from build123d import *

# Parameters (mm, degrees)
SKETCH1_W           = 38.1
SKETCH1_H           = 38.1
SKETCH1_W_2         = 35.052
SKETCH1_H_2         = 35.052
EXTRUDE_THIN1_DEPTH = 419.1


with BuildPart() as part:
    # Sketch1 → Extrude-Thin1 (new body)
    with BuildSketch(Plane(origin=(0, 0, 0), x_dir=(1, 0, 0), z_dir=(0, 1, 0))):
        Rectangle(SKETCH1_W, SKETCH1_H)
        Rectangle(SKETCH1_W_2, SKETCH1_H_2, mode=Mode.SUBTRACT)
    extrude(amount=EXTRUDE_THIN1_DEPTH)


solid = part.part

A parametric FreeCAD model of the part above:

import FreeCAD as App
import Part
import Sketcher
from FreeCAD import Vector
Q = App.Units.Quantity


def add_polygon(sketch, points):
    """Adds a closed chain of lines whose ends are joined by coincident constraints."""
    first, n = sketch.GeometryCount, len(points)
    for a, b in zip(points, points[1:] + points[:1]):
        sketch.addGeometry(Part.LineSegment(App.Vector(*a, 0), App.Vector(*b, 0)), False)
    for i in range(n):
        sketch.addConstraint(Sketcher.Constraint("Coincident", first + i, 2, first + (i + 1) % n, 1))

doc = App.newDocument("Part")
body = doc.addObject("PartDesign::Body", "Body")

# Sketch on XZ plane
sketch1 = body.newObject("Sketcher::SketchObject", "Sketch")
sketch1.AttachmentSupport = (doc.getObject("XZ_Plane"), [""])
sketch1.MapMode = "FlatFace"
add_polygon(sketch1, [(-19.05, -19.05), (-19.05, 19.05), (19.05, 19.05), (19.05, -19.05)])  # lines 0-3
add_polygon(sketch1, [(17.526, 17.526), (-17.526, 17.526), (-17.526, -17.526), (17.526, -17.526)])  # lines 4-7
sketch1.addConstraint([
    Sketcher.Constraint("Vertical", 0),
    Sketcher.Constraint("Horizontal", 1),
    Sketcher.Constraint("Vertical", 2),
    Sketcher.Constraint("Horizontal", 3),
    Sketcher.Constraint("Horizontal", 4),
    Sketcher.Constraint("Vertical", 5),
    Sketcher.Constraint("Horizontal", 6),
    Sketcher.Constraint("Vertical", 7),
    Sketcher.Constraint("Symmetric", 0, 2, 2, 2, -1, 1),
    Sketcher.Constraint("Symmetric", 4, 2, 6, 2, -1, 1),
    Sketcher.Constraint("Equal", 3, 0),
    Sketcher.Constraint("Equal", 6, 5),
    Sketcher.Constraint("DistanceX", 1, 1, 1, 2, Q("1.5 in")),
    Sketcher.Constraint("DistanceX", 4, 2, 4, 1, Q("1.38 in")),
])
pad1 = body.newObject("PartDesign::Pad", "Pad")
pad1.Profile = sketch1
pad1.Length = Q("16.5 in")
pad1.Reversed = True

doc.recompute()
